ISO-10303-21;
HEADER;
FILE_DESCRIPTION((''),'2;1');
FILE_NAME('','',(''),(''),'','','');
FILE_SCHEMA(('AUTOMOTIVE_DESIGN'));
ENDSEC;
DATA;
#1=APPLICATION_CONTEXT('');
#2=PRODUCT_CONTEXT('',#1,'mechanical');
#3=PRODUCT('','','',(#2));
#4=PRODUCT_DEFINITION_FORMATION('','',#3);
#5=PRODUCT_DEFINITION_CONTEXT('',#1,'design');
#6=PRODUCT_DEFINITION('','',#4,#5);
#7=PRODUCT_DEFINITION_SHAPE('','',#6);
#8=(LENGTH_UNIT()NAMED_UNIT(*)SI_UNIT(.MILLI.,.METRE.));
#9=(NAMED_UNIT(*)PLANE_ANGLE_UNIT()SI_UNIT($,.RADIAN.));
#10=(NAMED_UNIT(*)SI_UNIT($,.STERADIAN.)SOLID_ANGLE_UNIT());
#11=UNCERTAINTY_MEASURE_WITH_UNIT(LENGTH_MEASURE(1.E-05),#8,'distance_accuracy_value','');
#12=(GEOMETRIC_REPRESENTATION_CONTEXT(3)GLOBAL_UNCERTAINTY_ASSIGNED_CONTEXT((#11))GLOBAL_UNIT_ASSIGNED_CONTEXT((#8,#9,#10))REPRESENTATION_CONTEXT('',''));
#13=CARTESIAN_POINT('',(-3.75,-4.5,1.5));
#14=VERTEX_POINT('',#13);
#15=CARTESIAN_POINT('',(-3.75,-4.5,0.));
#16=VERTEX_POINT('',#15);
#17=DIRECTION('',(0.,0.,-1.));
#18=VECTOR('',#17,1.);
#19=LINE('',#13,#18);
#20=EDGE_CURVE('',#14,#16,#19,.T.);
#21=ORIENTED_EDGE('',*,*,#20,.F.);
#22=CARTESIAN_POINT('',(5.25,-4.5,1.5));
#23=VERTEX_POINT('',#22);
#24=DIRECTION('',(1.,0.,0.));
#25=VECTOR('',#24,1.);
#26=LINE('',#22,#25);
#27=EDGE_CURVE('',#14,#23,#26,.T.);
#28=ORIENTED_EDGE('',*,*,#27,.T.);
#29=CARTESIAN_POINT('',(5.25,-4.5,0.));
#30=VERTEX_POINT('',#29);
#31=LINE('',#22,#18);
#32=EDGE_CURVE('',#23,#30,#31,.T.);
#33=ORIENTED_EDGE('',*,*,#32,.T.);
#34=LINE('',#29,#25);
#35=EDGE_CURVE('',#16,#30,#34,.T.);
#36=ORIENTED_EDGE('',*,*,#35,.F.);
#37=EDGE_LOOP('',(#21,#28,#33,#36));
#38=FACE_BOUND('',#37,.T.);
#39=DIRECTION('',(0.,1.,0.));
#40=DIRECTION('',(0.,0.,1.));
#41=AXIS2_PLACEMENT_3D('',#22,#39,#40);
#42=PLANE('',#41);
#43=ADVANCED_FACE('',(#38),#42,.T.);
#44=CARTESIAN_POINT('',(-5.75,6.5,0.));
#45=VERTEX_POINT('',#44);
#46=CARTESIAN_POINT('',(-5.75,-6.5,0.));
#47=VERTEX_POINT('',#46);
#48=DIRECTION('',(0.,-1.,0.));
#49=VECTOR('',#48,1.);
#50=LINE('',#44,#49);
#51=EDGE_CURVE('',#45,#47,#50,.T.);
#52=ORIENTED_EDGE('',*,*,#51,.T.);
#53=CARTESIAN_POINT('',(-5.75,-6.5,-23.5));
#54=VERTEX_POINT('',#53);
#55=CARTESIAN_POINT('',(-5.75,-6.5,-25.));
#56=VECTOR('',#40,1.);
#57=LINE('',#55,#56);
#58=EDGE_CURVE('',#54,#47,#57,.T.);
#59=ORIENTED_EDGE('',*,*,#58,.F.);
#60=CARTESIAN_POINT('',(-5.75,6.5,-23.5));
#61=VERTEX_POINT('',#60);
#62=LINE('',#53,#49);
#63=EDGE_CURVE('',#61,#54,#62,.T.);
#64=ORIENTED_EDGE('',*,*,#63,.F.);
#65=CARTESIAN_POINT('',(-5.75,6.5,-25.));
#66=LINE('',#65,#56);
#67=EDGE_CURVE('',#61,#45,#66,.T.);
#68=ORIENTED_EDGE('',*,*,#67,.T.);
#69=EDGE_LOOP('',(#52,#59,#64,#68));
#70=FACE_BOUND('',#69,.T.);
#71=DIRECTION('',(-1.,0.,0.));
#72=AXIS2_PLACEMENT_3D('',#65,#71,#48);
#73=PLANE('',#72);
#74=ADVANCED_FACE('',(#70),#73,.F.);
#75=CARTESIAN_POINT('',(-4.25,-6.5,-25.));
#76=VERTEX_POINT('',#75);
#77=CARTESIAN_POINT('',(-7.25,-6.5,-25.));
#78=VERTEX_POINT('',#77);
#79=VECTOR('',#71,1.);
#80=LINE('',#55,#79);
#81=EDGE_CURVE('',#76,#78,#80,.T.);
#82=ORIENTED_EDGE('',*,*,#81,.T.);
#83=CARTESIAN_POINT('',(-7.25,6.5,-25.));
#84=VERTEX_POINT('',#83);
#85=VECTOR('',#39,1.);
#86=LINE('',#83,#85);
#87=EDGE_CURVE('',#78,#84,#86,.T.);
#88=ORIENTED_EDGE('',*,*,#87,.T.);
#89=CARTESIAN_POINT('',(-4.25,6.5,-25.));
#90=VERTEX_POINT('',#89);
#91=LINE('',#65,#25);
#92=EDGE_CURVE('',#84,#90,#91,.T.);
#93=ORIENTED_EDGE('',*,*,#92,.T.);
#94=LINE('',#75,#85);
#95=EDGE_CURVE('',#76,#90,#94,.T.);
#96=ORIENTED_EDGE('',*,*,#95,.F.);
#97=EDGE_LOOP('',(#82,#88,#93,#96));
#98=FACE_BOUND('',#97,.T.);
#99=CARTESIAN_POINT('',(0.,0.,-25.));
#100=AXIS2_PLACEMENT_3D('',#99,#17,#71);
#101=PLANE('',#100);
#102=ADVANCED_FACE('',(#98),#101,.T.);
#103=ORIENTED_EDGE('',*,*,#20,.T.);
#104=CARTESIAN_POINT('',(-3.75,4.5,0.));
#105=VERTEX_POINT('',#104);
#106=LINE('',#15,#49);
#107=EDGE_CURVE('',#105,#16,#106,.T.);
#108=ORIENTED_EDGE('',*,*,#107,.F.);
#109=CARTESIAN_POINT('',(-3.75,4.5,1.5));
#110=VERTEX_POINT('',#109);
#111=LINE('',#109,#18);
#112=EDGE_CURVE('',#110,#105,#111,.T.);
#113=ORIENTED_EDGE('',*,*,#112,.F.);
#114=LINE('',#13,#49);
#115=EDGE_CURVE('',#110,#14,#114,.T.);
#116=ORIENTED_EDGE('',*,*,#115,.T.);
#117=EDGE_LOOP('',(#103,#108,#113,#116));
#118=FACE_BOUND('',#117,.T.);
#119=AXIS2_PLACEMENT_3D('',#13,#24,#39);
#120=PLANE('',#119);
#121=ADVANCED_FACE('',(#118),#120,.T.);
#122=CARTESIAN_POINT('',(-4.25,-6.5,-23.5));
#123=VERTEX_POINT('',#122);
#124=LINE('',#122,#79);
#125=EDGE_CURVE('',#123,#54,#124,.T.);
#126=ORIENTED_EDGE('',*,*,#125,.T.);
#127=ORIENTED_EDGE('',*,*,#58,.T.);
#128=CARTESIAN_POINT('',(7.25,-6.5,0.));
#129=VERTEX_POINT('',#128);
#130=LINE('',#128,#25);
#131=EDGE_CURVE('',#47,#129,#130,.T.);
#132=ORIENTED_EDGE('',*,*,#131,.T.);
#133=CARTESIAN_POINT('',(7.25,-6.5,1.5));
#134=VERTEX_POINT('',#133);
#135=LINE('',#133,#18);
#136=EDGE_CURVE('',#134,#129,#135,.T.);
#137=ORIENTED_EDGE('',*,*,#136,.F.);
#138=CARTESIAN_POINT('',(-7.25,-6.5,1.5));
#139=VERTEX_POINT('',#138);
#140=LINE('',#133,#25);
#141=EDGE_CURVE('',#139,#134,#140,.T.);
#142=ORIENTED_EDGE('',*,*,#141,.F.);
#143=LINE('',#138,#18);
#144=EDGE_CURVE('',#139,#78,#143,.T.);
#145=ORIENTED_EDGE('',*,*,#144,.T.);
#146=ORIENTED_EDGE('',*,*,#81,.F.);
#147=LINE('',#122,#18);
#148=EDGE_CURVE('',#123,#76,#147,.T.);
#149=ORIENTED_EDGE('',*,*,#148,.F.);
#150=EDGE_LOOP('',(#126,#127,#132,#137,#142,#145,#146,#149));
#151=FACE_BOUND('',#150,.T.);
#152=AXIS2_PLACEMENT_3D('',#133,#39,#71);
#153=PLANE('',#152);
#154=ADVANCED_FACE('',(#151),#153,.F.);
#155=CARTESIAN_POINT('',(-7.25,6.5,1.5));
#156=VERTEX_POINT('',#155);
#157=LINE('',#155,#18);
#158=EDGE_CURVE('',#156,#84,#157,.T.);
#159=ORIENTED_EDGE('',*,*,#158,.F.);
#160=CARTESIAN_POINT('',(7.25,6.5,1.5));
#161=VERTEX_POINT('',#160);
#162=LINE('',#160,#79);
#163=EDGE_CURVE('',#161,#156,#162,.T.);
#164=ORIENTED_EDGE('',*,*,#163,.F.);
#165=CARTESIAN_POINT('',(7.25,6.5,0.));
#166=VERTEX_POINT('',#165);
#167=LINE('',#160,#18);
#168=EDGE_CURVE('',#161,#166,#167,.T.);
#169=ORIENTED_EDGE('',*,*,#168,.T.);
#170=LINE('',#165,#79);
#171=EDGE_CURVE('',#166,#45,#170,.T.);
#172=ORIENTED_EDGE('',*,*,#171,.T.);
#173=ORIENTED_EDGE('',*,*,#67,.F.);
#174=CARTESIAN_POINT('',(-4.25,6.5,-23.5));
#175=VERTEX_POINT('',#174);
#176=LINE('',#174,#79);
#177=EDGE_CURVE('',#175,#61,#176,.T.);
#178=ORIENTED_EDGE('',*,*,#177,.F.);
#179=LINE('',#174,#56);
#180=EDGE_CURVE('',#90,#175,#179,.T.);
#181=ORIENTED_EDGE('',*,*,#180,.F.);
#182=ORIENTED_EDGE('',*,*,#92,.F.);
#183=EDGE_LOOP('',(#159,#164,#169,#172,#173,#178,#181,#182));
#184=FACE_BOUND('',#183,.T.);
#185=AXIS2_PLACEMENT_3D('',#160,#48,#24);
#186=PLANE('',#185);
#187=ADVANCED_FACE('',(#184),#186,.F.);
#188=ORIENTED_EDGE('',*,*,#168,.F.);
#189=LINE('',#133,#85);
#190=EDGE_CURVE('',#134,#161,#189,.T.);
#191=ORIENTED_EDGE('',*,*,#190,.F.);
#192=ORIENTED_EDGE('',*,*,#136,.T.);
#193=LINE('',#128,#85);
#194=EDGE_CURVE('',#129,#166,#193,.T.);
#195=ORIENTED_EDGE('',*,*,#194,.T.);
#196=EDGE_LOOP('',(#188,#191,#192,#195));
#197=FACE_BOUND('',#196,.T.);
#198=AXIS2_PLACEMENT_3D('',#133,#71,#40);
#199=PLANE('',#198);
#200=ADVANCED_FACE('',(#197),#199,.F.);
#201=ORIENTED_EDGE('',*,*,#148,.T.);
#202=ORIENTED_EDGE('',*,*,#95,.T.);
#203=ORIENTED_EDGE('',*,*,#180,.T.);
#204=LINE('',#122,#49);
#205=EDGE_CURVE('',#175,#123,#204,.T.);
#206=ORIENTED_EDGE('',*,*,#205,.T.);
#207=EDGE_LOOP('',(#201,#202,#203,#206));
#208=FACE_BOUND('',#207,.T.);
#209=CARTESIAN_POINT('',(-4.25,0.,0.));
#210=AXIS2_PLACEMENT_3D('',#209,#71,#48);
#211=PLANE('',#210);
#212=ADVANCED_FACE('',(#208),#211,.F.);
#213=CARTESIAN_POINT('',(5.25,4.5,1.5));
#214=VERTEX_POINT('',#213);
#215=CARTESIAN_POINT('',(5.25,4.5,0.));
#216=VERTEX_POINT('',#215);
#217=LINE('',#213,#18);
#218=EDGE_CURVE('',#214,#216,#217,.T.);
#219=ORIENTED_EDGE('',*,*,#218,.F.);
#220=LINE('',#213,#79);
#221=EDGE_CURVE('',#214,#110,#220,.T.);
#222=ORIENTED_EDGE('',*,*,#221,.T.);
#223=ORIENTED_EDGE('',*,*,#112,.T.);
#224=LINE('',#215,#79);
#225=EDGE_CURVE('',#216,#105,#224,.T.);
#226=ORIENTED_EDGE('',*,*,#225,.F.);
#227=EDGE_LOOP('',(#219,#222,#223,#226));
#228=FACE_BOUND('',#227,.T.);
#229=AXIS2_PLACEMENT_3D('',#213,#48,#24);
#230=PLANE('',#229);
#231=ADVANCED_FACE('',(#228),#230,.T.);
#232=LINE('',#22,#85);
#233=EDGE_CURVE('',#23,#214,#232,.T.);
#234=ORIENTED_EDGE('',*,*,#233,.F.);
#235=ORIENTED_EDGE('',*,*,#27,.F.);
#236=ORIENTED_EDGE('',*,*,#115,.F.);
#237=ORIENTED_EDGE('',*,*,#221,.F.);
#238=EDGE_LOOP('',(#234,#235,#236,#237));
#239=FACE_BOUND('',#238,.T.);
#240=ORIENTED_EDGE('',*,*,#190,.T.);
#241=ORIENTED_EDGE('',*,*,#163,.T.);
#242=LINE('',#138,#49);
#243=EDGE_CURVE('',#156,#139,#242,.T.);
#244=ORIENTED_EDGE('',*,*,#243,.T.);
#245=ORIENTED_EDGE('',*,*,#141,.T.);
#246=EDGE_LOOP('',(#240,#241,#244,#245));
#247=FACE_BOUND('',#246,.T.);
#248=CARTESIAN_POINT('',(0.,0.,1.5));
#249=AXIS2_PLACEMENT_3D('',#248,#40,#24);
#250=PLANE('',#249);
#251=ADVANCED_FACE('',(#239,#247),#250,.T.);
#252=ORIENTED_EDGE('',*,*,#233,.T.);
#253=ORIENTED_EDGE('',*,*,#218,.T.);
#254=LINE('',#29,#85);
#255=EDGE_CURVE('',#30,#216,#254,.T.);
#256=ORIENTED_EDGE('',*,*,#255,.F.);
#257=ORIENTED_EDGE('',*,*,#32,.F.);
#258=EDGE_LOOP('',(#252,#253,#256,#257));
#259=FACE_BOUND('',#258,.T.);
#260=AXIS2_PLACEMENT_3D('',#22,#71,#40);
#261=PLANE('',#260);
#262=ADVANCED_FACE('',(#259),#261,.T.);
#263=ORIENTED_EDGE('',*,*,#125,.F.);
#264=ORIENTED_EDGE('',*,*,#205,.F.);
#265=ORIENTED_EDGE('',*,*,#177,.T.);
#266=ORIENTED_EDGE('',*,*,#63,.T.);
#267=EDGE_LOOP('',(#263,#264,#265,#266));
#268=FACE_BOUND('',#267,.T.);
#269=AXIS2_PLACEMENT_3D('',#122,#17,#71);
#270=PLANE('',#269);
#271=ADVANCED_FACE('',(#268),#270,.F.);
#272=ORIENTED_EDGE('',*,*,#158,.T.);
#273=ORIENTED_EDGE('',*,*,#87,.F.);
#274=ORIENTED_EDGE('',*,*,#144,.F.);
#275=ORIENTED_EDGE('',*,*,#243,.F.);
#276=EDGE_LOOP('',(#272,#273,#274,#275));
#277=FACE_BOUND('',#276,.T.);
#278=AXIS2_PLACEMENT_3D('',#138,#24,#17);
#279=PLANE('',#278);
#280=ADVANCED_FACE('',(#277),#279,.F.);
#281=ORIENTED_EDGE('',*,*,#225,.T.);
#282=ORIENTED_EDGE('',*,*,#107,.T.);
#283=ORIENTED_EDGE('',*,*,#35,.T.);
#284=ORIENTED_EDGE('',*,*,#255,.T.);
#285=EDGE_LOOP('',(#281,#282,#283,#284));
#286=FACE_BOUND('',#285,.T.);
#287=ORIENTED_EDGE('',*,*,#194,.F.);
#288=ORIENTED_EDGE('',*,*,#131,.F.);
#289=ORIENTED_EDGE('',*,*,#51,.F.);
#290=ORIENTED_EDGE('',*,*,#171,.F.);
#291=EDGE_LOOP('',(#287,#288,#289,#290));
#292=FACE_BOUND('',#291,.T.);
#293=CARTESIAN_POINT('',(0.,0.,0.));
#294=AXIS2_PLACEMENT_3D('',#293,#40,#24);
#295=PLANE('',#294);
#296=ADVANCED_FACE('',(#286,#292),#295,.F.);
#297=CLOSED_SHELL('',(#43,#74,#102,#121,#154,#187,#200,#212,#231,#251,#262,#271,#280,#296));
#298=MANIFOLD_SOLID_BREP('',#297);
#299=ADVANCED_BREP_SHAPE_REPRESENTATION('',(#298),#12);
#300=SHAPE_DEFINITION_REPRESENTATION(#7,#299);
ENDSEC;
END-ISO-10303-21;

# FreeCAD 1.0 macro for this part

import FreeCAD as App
import Part
import Sketcher
Q = App.Units.Quantity


def add_polygon(sketch, points):
    """Adds a closed chain of lines whose ends are joined by coincident constraints."""
    first, n = sketch.GeometryCount, len(points)
    for a, b in zip(points, points[1:] + points[:1]):
        sketch.addGeometry(Part.LineSegment(App.Vector(*a, 0), App.Vector(*b, 0)), False)
    for i in range(n):
        sketch.addConstraint(Sketcher.Constraint("Coincident", first + i, 2, first + (i + 1) % n, 1))

doc = App.newDocument("Part")
body = doc.addObject("PartDesign::Body", "Body")

# Sketch on XY plane
sketch1 = body.newObject("Sketcher::SketchObject", "Sketch")
sketch1.AttachmentSupport = (doc.getObject("XY_Plane"), [""])
sketch1.MapMode = "FlatFace"
add_polygon(sketch1, [(-7, 6), (-7, -6), (7, -6), (7, 6)])  # lines 0-3
add_polygon(sketch1, [(5, -4), (-4, -4), (-4, 4), (5, 4)])  # lines 4-7
sketch1.addConstraint([
    Sketcher.Constraint("Vertical", 0),
    Sketcher.Constraint("Horizontal", 1),
    Sketcher.Constraint("Vertical", 2),
    Sketcher.Constraint("Horizontal", 3),
    Sketcher.Constraint("Horizontal", 4),
    Sketcher.Constraint("Vertical", 5),
    Sketcher.Constraint("Horizontal", 6),
    Sketcher.Constraint("Vertical", 7),
    Sketcher.Constraint("Symmetric", 0, 2, 2, 2, -1, 1),
    Sketcher.Constraint("Equal", 6, 5),
    Sketcher.Constraint("DistanceX", 4, 2, 4, 1, Q("9 mm")),
    Sketcher.Constraint("DistanceY", 0, 2, 0, 1, Q("13 mm")),
    Sketcher.Constraint("DistanceX", 1, 1, 1, 2, Q("14.5 mm")),
    Sketcher.Constraint("DistanceY", 0, 2, 4, 2, Q("2 mm")),
    Sketcher.Constraint("DistanceX", 4, 2, 1, 2, Q("11 mm")),
])
pad1 = body.newObject("PartDesign::Pad", "Pad")
pad1.Profile = sketch1
pad1.Length = 1.5

# Sketch on XY plane
sketch2 = body.newObject("Sketcher::SketchObject", "Sketch001")
sketch2.AttachmentSupport = (doc.getObject("XY_Plane"), [""])
sketch2.MapMode = "FlatFace"
add_polygon(sketch2, [(-5.8, 6.5), (-5.8, -6.5), (-7.2, -6.5), (-7.2, 6.5)])  # lines 0-3
sketch2.addConstraint([
    Sketcher.Constraint("Vertical", 0),
    Sketcher.Constraint("Horizontal", 1),
    Sketcher.Constraint("Vertical", 2),
    Sketcher.Constraint("Horizontal", 3),
    Sketcher.Constraint("DistanceY", 0, 2, 0, 1, Q("13 mm")),
    Sketcher.Constraint("DistanceX", 1, 2, 1, 1, Q("1.5 mm")),
    Sketcher.Constraint("DistanceY", 0, 2, -1, 1, Q("6.5 mm")),
    Sketcher.Constraint("DistanceX", 0, 2, -1, 1, Q("5.75 mm")),
])
pad2 = body.newObject("PartDesign::Pad", "Pad001")
pad2.Profile = sketch2
pad2.Length = 25
pad2.Reversed = True

# Sketch on YZ plane
sketch3 = body.newObject("Sketcher::SketchObject", "Sketch002")
sketch3.AttachmentSupport = (doc.getObject("YZ_Plane"), [""])
sketch3.MapMode = "FlatFace"
sketch3.AttachmentOffset = App.Placement(App.Vector(0, 0, -5.75), App.Rotation())
add_polygon(sketch3, [(6.5, -23.5), (-6.5, -23.5), (-6.5, -25), (6.5, -25)])  # lines 0-3
sketch3.addConstraint([
    Sketcher.Constraint("Horizontal", 0),
    Sketcher.Constraint("Vertical", 1),
    Sketcher.Constraint("Horizontal", 2),
    Sketcher.Constraint("Vertical", 3),
    Sketcher.Constraint("DistanceX", 0, 2, 0, 1, Q("13 mm")),
    Sketcher.Constraint("DistanceY", 1, 2, 1, 1, Q("1.5 mm")),
    Sketcher.Constraint("DistanceY", 1, 2, -1, 1, Q("25 mm")),
    Sketcher.Constraint("DistanceX", 0, 2, -1, 1, Q("6.5 mm")),
])
pad3 = body.newObject("PartDesign::Pad", "Pad002")
pad3.Profile = sketch3
pad3.Length = 1.5

doc.recompute()
